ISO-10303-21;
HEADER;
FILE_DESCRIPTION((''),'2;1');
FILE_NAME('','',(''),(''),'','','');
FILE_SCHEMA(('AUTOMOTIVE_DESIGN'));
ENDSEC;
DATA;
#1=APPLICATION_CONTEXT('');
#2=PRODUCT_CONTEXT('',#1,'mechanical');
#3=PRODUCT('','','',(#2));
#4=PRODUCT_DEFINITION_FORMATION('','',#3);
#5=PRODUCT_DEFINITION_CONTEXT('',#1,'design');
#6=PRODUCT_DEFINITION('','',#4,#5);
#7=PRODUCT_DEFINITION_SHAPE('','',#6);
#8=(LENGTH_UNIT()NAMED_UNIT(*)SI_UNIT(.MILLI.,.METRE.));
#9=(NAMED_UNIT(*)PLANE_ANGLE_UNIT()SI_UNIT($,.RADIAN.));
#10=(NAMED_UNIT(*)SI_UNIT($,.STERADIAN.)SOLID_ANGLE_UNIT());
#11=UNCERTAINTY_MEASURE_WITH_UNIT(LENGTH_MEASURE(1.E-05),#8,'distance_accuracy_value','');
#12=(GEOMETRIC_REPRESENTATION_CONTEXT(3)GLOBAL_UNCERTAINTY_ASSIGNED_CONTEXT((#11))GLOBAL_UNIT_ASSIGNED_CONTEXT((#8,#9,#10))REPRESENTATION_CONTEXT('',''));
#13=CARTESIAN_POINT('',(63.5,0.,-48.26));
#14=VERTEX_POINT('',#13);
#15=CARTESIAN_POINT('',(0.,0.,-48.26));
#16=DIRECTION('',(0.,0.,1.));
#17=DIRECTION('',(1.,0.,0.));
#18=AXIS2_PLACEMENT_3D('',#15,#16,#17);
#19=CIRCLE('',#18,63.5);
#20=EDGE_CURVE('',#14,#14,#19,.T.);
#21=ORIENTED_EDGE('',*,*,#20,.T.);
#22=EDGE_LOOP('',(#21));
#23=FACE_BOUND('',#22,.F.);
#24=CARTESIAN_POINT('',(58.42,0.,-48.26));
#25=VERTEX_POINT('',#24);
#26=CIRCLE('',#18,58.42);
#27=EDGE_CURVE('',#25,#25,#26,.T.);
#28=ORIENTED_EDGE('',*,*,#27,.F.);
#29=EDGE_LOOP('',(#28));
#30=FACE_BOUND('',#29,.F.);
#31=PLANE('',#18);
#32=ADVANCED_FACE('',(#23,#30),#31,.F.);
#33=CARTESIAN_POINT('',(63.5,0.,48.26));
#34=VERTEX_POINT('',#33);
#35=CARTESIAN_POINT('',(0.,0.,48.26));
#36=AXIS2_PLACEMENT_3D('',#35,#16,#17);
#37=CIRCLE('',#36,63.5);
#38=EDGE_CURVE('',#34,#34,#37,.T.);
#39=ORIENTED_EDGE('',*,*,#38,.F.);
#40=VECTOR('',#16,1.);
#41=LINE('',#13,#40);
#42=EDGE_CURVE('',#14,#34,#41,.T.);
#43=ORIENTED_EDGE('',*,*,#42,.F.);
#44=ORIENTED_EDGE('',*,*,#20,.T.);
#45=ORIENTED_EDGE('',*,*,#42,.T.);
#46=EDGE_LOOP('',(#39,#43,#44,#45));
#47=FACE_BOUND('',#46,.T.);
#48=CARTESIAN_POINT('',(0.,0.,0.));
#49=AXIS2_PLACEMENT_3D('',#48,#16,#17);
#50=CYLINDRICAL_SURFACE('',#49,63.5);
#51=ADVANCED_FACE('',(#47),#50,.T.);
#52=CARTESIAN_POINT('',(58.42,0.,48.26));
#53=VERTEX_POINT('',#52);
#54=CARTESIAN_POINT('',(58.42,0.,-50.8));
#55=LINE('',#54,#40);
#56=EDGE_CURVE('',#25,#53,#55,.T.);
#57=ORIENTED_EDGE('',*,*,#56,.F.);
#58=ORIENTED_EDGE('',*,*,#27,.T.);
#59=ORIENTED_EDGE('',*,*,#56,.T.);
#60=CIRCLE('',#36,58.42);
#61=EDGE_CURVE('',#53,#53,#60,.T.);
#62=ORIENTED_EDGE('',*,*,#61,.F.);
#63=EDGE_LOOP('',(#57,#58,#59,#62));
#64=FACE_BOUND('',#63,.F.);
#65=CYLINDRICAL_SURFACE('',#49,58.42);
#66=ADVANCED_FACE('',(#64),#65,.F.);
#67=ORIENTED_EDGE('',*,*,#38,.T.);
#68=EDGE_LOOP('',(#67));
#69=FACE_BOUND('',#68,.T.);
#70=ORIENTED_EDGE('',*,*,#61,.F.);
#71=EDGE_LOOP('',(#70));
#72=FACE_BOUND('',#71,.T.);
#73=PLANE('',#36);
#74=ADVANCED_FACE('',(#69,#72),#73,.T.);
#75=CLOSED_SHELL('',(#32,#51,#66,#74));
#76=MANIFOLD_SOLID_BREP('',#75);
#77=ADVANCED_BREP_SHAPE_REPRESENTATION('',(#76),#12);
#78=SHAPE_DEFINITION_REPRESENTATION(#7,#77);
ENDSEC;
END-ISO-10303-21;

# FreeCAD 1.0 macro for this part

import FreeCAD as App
import Part
import Sketcher
from FreeCAD import Vector
Q = App.Units.Quantity

doc = App.newDocument("Part")
params = doc.addObject("Spreadsheet::Sheet", "Params")
for row, (alias, value) in enumerate([
    ("sketch1_diameter", "5 in"),
    ("pad1_length", "3.8 in"),
    ("sketch2_diameter", "4.6 in"),
    ("pocket1_length", "4 in"),
], start=1):
    params.set(f"A{row}", alias)
    params.set(f"B{row}", "=" + value)
    params.setAlias(f"B{row}", alias)

body = doc.addObject("PartDesign::Body", "Body")

sketch1 = doc.addObject("Sketcher::SketchObject", "Sketch")
body.addObject(sketch1)
sketch1.AttachmentSupport = (doc.XY_Plane, [""])
sketch1.MapMode = "FlatFace"
sketch1.addGeometry(Part.Circle(Vector(0, 0, 0), Vector(0, 0, 1), 64), False)
sketch1.addConstraint(Sketcher.Constraint("Coincident", 0, 3, -1, 1))
sketch1.addConstraint(Sketcher.Constraint("Diameter", 0, Q("5 in")))
sketch1.setExpression("Constraints[1]", "Params.sketch1_diameter")
pad1 = doc.addObject("PartDesign::Pad", "Pad")
body.addObject(pad1)
pad1.Profile = sketch1
pad1.setExpression("Length", "Params.pad1_length")
pad1.Midplane = True

sketch2 = doc.addObject("Sketcher::SketchObject", "Sketch001")
body.addObject(sketch2)
sketch2.AttachmentSupport = (doc.XY_Plane, [""])
sketch2.MapMode = "FlatFace"
sketch2.addGeometry(Part.Circle(Vector(0, 0, 0), Vector(0, 0, 1), 58), False)
sketch2.addConstraint(Sketcher.Constraint("Coincident", 0, 3, -1, 1))
sketch2.addConstraint(Sketcher.Constraint("Diameter", 0, Q("4.6 in")))
sketch2.setExpression("Constraints[1]", "Params.sketch2_diameter")
pocket1 = doc.addObject("PartDesign::Pocket", "Pocket")
body.addObject(pocket1)
pocket1.Profile = sketch2
pocket1.setExpression("Length", "Params.pocket1_length")
pocket1.Midplane = True

doc.recompute()
